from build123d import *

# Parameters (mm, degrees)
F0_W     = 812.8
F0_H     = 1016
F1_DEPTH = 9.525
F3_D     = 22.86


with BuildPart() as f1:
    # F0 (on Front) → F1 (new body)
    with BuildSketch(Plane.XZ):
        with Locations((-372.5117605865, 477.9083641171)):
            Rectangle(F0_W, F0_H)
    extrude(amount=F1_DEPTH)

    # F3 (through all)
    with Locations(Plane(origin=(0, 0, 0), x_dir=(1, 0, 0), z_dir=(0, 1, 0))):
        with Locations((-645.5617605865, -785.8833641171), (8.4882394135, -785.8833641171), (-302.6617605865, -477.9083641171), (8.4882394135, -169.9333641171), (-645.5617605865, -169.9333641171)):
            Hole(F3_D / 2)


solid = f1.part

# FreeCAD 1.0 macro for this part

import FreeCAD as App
import Part
import Sketcher

V = App.Vector
Q = App.Units.Quantity

doc = App.newDocument("Part")
params = doc.addObject("Spreadsheet::Sheet", "Params")
for row, (alias, value) in enumerate([
    ("sketch1_width", "32 in"),
    ("sketch1_height", "40 in"),
    ("pad1_length", "0.375 in"),
    ("sketch2_diameter", "0.9 in"),
    ("hole_diameter", "0.9 in"),
], start=1):
    params.set(f"A{row}", alias)
    params.set(f"B{row}", "=" + value)
    params.setAlias(f"B{row}", alias)

body = doc.addObject("PartDesign::Body", "Body")

# Sketch on XZ plane
sketch1 = body.newObject("Sketcher::SketchObject", "Sketch")
sketch1.AttachmentSupport = (doc.getObject("XZ_Plane"), [""])
sketch1.MapMode = "FlatFace"
sketch1.addGeometry(Part.LineSegment(V(-778.911761, 985.908364, 0), V(-778.911761, -30.091636, 0)), False)
sketch1.addGeometry(Part.LineSegment(V(-778.911761, -30.091636, 0), V(33.888239, -30.091636, 0)), False)
sketch1.addGeometry(Part.LineSegment(V(33.888239, -30.091636, 0), V(33.888239, 985.908364, 0)), False)
sketch1.addGeometry(Part.LineSegment(V(33.888239, 985.908364, 0), V(-778.911761, 985.908364, 0)), False)
sketch1.addConstraint(Sketcher.Constraint("Coincident", 0, 2, 1, 1))
sketch1.addConstraint(Sketcher.Constraint("Coincident", 1, 2, 2, 1))
sketch1.addConstraint(Sketcher.Constraint("Coincident", 2, 2, 3, 1))
sketch1.addConstraint(Sketcher.Constraint("Coincident", 3, 2, 0, 1))
sketch1.addConstraint(Sketcher.Constraint("Vertical", 0))
sketch1.addConstraint(Sketcher.Constraint("Horizontal", 1))
sketch1.addConstraint(Sketcher.Constraint("Vertical", 2))
sketch1.addConstraint(Sketcher.Constraint("Horizontal", 3))
sketch1.addConstraint(Sketcher.Constraint("DistanceX", 1, 1, 1, 2, Q("32 in")))
sketch1.addConstraint(Sketcher.Constraint("DistanceY", 0, 2, 0, 1, Q("40 in")))
sketch1.addConstraint(Sketcher.Constraint("DistanceX", 0, 2, -1, 1, Q("778.911761 mm")))
sketch1.addConstraint(Sketcher.Constraint("DistanceY", 0, 2, -1, 1, Q("30.091636 mm")))
sketch1.setExpression("Constraints[8]", "Params.sketch1_width")
sketch1.setExpression("Constraints[9]", "Params.sketch1_height")
pad1 = body.newObject("PartDesign::Pad", "Pad")
pad1.Profile = sketch1
pad1.setExpression("Length", "Params.pad1_length")

# Sketch on XZ plane
sketch2 = body.newObject("Sketcher::SketchObject", "Sketch001")
sketch2.AttachmentSupport = (doc.getObject("XZ_Plane"), [""])
sketch2.MapMode = "FlatFace"
sketch2.addGeometry(Part.Circle(V(-645.561761, 785.883364, 0), V(0, 0, 1), 11.43), False)
sketch2.addGeometry(Part.Circle(V(8.488239, 785.883364, 0), V(0, 0, 1), 11.43), False)
sketch2.addGeometry(Part.Circle(V(-302.661761, 477.908364, 0), V(0, 0, 1), 11.43), False)
sketch2.addGeometry(Part.Circle(V(8.488239, 169.933364, 0), V(0, 0, 1), 11.43), False)
sketch2.addGeometry(Part.Circle(V(-645.561761, 169.933364, 0), V(0, 0, 1), 11.43), False)
sketch2.addConstraint(Sketcher.Constraint("Equal", 0, 1))
sketch2.addConstraint(Sketcher.Constraint("Equal", 1, 2))
sketch2.addConstraint(Sketcher.Constraint("Equal", 2, 3))
sketch2.addConstraint(Sketcher.Constraint("Equal", 3, 4))
sketch2.addConstraint(Sketcher.Constraint("Horizontal", 0, 3, 1, 3))
sketch2.addConstraint(Sketcher.Constraint("Horizontal", 3, 3, 4, 3))
sketch2.addConstraint(Sketcher.Constraint("Vertical", 1, 3, 3, 3))
sketch2.addConstraint(Sketcher.Constraint("Vertical", 0, 3, 4, 3))
sketch2.addConstraint(Sketcher.Constraint("Diameter", 0, Q("0.9 in")))
sketch2.addConstraint(Sketcher.Constraint("DistanceX", 0, 3, 2, 3, Q("13.5 in")))
sketch2.addConstraint(Sketcher.Constraint("DistanceX", 0, 3, 1, 3, Q("25.75 in")))
sketch2.addConstraint(Sketcher.Constraint("DistanceY", 3, 3, 1, 3, Q("24.25 in")))
sketch2.addConstraint(Sketcher.Constraint("DistanceY", 2, 3, 1, 3, Q("12.125 in")))
sketch2.addConstraint(Sketcher.Constraint("DistanceX", 0, 3, -1, 1, Q("645.561761 mm")))
sketch2.addConstraint(Sketcher.Constraint("DistanceY", -1, 1, 0, 3, Q("785.883364 mm")))
sketch2.setExpression("Constraints[8]", "Params.sketch2_diameter")
doc.recompute()
hole = body.newObject("PartDesign::Hole", "Hole")
hole.Profile = sketch2
hole.ThreadType = "None"
hole.setExpression("Diameter", "Params.hole_diameter")
hole.DepthType = "ThroughAll"
hole.Reversed = True

doc.recompute()
